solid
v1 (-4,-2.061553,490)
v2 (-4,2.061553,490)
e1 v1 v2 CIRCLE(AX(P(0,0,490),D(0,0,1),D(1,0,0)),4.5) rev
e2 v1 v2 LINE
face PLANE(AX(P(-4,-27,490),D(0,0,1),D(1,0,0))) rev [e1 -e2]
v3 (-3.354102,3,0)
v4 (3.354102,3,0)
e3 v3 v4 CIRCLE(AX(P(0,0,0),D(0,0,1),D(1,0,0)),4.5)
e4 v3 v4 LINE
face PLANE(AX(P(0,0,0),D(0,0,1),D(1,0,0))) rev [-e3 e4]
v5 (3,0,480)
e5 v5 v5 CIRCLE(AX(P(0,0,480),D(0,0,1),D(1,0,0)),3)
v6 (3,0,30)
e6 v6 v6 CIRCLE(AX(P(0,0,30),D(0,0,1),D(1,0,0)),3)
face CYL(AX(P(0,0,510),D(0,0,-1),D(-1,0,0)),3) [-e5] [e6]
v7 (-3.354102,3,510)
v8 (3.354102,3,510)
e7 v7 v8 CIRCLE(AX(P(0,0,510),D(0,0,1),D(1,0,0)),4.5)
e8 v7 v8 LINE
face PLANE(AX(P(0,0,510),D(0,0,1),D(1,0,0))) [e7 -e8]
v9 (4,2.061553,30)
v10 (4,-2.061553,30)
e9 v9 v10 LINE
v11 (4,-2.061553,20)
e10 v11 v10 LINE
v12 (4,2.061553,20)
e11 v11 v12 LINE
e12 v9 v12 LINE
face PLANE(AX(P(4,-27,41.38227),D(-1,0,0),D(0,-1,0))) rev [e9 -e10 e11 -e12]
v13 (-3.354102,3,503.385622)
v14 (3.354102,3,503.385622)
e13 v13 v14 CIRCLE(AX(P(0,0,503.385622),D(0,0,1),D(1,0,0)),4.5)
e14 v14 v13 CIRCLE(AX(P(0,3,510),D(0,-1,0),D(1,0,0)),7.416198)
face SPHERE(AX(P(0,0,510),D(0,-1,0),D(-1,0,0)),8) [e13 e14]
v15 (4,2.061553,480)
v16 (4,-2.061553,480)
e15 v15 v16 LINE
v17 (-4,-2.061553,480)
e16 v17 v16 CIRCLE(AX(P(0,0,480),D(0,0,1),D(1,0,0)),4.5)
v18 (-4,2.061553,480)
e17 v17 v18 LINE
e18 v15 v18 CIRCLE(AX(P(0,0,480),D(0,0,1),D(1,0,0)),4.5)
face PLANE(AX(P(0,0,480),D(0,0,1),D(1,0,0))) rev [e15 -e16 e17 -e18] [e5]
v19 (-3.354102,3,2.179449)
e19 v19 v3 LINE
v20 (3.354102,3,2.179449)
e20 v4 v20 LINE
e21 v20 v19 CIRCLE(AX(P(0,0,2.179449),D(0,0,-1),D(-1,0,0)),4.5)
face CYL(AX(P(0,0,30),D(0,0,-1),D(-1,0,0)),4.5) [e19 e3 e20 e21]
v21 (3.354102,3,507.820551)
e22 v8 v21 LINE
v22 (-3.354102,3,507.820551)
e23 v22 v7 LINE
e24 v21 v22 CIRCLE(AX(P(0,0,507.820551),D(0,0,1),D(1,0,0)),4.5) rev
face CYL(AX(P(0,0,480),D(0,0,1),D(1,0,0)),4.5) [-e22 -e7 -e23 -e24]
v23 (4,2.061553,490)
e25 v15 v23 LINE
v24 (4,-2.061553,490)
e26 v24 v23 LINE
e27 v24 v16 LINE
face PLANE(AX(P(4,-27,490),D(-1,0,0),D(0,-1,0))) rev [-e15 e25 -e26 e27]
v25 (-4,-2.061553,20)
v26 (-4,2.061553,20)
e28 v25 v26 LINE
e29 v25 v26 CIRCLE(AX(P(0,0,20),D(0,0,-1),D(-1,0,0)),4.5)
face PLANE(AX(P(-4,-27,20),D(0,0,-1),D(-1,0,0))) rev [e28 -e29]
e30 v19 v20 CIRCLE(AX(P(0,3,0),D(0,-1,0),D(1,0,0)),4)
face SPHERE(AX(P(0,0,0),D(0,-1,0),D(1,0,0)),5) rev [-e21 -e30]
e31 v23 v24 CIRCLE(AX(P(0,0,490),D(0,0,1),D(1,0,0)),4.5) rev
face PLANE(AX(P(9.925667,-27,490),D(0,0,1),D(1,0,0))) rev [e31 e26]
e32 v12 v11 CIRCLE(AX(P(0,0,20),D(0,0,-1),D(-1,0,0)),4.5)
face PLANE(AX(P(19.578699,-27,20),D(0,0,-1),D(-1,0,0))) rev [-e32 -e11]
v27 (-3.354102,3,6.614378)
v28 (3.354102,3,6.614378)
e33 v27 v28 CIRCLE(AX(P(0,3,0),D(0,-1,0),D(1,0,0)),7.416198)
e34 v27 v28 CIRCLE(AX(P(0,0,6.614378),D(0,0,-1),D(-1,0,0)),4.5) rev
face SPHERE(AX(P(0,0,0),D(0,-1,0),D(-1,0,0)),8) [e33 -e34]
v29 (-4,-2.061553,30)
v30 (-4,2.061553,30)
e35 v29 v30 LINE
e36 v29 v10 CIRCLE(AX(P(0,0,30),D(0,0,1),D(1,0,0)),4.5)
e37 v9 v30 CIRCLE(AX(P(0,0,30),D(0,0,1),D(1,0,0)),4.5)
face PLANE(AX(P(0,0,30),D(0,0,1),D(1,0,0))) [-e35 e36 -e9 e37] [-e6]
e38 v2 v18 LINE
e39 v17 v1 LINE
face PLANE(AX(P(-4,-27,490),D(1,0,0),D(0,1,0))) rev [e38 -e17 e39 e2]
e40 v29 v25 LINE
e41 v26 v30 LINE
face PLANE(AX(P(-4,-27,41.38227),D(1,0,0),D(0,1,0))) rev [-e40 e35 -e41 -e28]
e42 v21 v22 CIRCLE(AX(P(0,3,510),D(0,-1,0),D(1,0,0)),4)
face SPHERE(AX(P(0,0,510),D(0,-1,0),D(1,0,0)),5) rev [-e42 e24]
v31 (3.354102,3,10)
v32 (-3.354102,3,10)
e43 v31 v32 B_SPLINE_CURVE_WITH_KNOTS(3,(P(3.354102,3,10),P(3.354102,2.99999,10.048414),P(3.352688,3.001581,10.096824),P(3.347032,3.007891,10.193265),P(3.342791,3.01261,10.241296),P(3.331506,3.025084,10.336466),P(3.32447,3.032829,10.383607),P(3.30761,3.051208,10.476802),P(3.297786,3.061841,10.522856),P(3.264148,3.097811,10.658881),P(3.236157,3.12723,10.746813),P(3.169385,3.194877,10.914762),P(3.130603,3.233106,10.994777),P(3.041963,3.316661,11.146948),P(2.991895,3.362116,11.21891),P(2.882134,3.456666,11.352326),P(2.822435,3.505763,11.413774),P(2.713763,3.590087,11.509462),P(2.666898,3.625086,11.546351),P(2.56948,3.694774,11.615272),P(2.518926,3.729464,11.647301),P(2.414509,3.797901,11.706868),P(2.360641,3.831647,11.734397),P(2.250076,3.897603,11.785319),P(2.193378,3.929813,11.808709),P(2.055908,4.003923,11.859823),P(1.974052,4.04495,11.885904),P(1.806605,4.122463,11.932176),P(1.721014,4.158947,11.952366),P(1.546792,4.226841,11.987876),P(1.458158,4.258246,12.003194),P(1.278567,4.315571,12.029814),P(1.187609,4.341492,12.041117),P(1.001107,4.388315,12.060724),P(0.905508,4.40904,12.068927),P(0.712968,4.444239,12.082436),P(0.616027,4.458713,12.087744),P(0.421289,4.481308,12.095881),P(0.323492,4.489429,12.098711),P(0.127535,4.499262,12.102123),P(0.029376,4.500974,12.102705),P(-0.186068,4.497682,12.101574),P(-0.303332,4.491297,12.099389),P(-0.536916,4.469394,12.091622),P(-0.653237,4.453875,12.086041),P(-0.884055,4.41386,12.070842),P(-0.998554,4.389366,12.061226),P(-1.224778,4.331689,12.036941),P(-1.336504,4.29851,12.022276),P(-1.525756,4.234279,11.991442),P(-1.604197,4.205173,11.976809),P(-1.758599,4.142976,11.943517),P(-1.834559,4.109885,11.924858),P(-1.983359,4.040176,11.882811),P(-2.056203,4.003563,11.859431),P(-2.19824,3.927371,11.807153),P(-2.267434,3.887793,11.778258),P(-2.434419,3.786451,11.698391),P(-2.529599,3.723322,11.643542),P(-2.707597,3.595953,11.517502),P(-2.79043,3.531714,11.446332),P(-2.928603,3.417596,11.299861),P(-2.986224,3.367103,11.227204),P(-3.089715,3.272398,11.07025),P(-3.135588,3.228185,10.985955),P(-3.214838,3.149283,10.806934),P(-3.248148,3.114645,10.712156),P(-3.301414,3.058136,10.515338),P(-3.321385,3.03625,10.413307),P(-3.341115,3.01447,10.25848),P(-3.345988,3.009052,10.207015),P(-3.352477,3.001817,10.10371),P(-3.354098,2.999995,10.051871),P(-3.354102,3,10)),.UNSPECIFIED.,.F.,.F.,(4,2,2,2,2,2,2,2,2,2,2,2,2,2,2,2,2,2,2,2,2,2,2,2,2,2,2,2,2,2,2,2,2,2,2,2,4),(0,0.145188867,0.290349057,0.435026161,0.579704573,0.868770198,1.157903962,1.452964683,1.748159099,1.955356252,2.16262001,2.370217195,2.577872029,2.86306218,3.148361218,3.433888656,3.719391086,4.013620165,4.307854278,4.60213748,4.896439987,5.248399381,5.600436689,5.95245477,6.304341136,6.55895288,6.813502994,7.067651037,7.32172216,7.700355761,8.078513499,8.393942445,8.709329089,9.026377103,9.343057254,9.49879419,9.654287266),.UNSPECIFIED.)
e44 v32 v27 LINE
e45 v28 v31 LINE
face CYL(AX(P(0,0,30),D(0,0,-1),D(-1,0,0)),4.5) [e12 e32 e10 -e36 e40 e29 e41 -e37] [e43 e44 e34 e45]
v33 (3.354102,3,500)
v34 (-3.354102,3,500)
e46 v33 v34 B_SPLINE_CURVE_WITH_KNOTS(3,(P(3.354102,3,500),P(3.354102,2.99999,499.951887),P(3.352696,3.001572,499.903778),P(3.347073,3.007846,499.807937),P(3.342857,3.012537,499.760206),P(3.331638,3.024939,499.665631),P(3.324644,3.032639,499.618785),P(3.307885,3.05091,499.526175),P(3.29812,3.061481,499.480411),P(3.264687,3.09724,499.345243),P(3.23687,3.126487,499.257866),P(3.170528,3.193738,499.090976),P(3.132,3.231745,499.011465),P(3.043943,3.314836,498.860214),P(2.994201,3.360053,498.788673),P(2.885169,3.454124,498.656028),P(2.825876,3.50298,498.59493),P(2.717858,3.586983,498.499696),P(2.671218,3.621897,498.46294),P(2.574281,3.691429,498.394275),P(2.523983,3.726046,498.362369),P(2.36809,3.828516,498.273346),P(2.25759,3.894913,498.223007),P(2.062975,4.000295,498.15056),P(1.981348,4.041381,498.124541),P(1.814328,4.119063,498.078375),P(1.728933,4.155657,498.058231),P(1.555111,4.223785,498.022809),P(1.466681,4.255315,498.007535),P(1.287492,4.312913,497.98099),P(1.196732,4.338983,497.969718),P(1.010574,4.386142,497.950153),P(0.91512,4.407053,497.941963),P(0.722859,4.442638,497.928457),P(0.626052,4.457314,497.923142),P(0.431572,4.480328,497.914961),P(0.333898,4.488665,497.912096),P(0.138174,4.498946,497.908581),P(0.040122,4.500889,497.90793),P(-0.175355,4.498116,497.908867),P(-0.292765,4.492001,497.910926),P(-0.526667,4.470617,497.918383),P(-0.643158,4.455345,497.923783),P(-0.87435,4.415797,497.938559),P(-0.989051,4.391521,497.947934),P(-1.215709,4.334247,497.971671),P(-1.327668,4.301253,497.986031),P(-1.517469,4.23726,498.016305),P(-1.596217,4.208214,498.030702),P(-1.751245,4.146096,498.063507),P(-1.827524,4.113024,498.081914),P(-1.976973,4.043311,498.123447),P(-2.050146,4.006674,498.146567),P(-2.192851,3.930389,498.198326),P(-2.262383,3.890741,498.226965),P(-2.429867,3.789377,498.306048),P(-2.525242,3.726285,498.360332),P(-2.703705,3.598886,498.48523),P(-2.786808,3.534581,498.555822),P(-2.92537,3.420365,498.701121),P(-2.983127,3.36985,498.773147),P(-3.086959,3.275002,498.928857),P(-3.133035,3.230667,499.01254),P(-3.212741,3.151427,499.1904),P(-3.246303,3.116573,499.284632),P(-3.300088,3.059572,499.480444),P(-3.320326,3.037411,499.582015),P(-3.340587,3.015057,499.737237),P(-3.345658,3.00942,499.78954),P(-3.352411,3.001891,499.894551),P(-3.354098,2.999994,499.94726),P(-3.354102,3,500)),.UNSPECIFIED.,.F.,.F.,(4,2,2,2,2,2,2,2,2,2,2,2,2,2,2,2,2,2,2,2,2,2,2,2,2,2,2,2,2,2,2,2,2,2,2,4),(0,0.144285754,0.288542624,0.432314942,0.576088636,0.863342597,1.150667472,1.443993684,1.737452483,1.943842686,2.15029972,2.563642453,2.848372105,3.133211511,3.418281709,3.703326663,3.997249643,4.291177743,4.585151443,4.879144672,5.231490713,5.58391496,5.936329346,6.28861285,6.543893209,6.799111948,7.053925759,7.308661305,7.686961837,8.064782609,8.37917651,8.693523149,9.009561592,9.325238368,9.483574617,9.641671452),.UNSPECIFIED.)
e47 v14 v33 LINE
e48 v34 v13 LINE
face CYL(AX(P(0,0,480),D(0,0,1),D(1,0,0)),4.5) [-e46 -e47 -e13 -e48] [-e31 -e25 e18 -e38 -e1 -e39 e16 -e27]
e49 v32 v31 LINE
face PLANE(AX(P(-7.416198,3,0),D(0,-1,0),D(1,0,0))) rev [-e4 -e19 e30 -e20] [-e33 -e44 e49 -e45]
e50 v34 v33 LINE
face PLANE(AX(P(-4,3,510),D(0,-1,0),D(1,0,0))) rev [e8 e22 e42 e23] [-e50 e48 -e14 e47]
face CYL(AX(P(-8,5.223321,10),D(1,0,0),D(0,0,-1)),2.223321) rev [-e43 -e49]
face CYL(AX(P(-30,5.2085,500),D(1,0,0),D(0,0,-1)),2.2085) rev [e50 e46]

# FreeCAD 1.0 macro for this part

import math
import FreeCAD as App
import Part
import Sketcher
from FreeCAD import Vector

doc = App.newDocument("Part")
body = doc.addObject("PartDesign::Body", "Body")

# Sketch on XY plane
sketch1 = body.newObject("Sketcher::SketchObject", "Sketch")
sketch1.AttachmentSupport = (doc.getObject("XY_Plane"), [""])
sketch1.MapMode = "FlatFace"
sketch1.addGeometry([
    Part.LineSegment(Vector(-4, 3, 0), Vector(-7.416198, 3, 0)),
    Part.ArcOfCircle(Part.Circle(Vector(0, 0, 0), Vector(0, 0, 1), 8), math.radians(157.975687), math.radians(270)),
    Part.LineSegment(Vector(0, -8, 0), Vector(0, -5, 0)),
    Part.ArcOfCircle(Part.Circle(Vector(0, 0, 0), Vector(0, 0, 1), 5), math.radians(143.130102), math.radians(270)),
], False)
sketch1.addConstraint([
    Sketcher.Constraint("Coincident", 0, 2, 1, 1),
    Sketcher.Constraint("Coincident", 1, 2, 2, 1),
    Sketcher.Constraint("Coincident", 2, 2, 3, 2),
    Sketcher.Constraint("Coincident", 3, 1, 0, 1),
    Sketcher.Constraint("Horizontal", 0),
    Sketcher.Constraint("Vertical", 2),
    Sketcher.Constraint("Coincident", 1, 3, -1, 1),
    Sketcher.Constraint("Coincident", 3, 3, -1, 1),
    Sketcher.Constraint("PointOnObject", 1, 2, -2),
    Sketcher.Constraint("Radius", 1, 8.0),
    Sketcher.Constraint("Radius", 3, 5.0),
    Sketcher.Constraint("DistanceY", -1, 1, 0, 2, 3.0),
])
revolution = body.newObject("PartDesign::Revolution", "Revolution")
revolution.Profile = sketch1
revolution.ReferenceAxis = (sketch1, ["V_Axis"])
revolution.Angle = 360

# Sketch on XY plane
sketch2 = body.newObject("Sketcher::SketchObject", "Sketch001")
sketch2.AttachmentSupport = (doc.getObject("XY_Plane"), [""])
sketch2.MapMode = "FlatFace"
sketch2.addGeometry(Part.Circle(Vector(0, 0, 0), Vector(0, 0, 1), 3), False)
sketch2.addConstraint([
    Sketcher.Constraint("Coincident", 0, 3, -1, 1),
    Sketcher.Constraint("Diameter", 0, 6.0),
])
pad1 = body.newObject("PartDesign::Pad", "Pad")
pad1.Profile = sketch2
pad1.Length = 510

# Sketch on XY plane
sketch3 = body.newObject("Sketcher::SketchObject", "Sketch002")
sketch3.AttachmentSupport = (doc.getObject("XY_Plane"), [""])
sketch3.MapMode = "FlatFace"
sketch3.addGeometry([
    Part.LineSegment(Vector(0, -5, 0), Vector(0, 5, 0)),
    Part.ArcOfCircle(Part.Circle(Vector(0, 0, 0), Vector(0, 0, 1), 5), math.radians(90), math.radians(270)),
], False)
sketch3.addConstraint([
    Sketcher.Constraint("Coincident", 0, 1, 1, 2),
    Sketcher.Constraint("Coincident", 1, 1, 0, 2),
    Sketcher.Constraint("Vertical", 0),
    Sketcher.Constraint("Coincident", 1, 3, -1, 1),
    Sketcher.Constraint("PointOnObject", 0, 1, -2),
    Sketcher.Constraint("Radius", 1, 5.0),
])
groove = body.newObject("PartDesign::Groove", "Groove")
groove.Profile = sketch3
groove.ReferenceAxis = (sketch3, ["V_Axis"])
groove.Angle = 360

# Sketch on XY plane
sketch4 = body.newObject("Sketcher::SketchObject", "Sketch003")
sketch4.AttachmentSupport = (doc.getObject("XY_Plane"), [""])
sketch4.MapMode = "FlatFace"
sketch4.AttachmentOffset = App.Placement(Vector(0, 0, 510), App.Rotation())
sketch4.addGeometry([
    Part.LineSegment(Vector(-4, 3, 0), Vector(-7.416198, 3, 0)),
    Part.ArcOfCircle(Part.Circle(Vector(0, 0, 0), Vector(0, 0, 1), 8), math.radians(157.975687), math.radians(270)),
    Part.LineSegment(Vector(0, -8, 0), Vector(0, -5, 0)),
    Part.ArcOfCircle(Part.Circle(Vector(0, 0, 0), Vector(0, 0, 1), 5), math.radians(143.130102), math.radians(270)),
], False)
sketch4.addConstraint([
    Sketcher.Constraint("Coincident", 0, 2, 1, 1),
    Sketcher.Constraint("Coincident", 1, 2, 2, 1),
    Sketcher.Constraint("Coincident", 2, 2, 3, 2),
    Sketcher.Constraint("Coincident", 3, 1, 0, 1),
    Sketcher.Constraint("Horizontal", 0),
    Sketcher.Constraint("Vertical", 2),
    Sketcher.Constraint("Coincident", 1, 3, -1, 1),
    Sketcher.Constraint("Coincident", 3, 3, -1, 1),
    Sketcher.Constraint("PointOnObject", 1, 2, -2),
    Sketcher.Constraint("Radius", 1, 8.0),
    Sketcher.Constraint("Radius", 3, 5.0),
    Sketcher.Constraint("DistanceY", -1, 1, 0, 2, 3.0),
])
revolution2 = body.newObject("PartDesign::Revolution", "Revolution001")
revolution2.Profile = sketch4
revolution2.ReferenceAxis = (sketch4, ["V_Axis"])
revolution2.Angle = 360

# Sketch on XY plane
sketch5 = body.newObject("Sketcher::SketchObject", "Sketch004")
sketch5.AttachmentSupport = (doc.getObject("XY_Plane"), [""])
sketch5.MapMode = "FlatFace"
sketch5.addGeometry(Part.Circle(Vector(0, 0, 0), Vector(0, 0, 1), 4.5), False)
sketch5.addConstraint([
    Sketcher.Constraint("Coincident", 0, 3, -1, 1),
    Sketcher.Constraint("Diameter", 0, 9.0),
])
pad2 = body.newObject("PartDesign::Pad", "Pad001")
pad2.Profile = sketch5
pad2.Length = 30

# Sketch on YZ plane
sketch6 = body.newObject("Sketcher::SketchObject", "Sketch005")
sketch6.AttachmentSupport = (doc.getObject("YZ_Plane"), [""])
sketch6.MapMode = "FlatFace"
sketch6.addGeometry([
    Part.LineSegment(Vector(3, 10, 0), Vector(3, -7.416198, 0)),
    Part.LineSegment(Vector(3, -7.416198, 0), Vector(4.5, 0, 0)),
    Part.LineSegment(Vector(4.5, 0, 0), Vector(4.5, 12.102371, 0)),
    Part.ArcOfCircle(Part.Circle(Vector(5.223321, 10, 0), Vector(0, 0, 1), 2.223321), math.radians(108.985783), math.radians(180)),
], False)
sketch6.addConstraint([
    Sketcher.Constraint("Coincident", 0, 2, 1, 1),
    Sketcher.Constraint("Coincident", 1, 2, 2, 1),
    Sketcher.Constraint("Coincident", 2, 2, 3, 1),
    Sketcher.Constraint("Tangent", 3, 2, 0, 1),
    Sketcher.Constraint("Vertical", 0),
    Sketcher.Constraint("Vertical", 2),
    Sketcher.Constraint("PointOnObject", 1, 2, -1),
    Sketcher.Constraint("DistanceY", -1, 1, 3, 3, 10.0),
    Sketcher.Constraint("DistanceX", -1, 1, 0, 2, 3.0),
    Sketcher.Constraint("DistanceX", -1, 1, 1, 2, 4.5),
    Sketcher.Constraint("Radius", 3, 2.223321),
    Sketcher.Constraint("DistanceY", 0, 2, 0, 1, 17.416198),
])
pocket1 = body.newObject("PartDesign::Pocket", "Pocket")
pocket1.Profile = sketch6
pocket1.Type = "ThroughAll"
pocket1.Midplane = True

# Sketch on XY plane
sketch7 = body.newObject("Sketcher::SketchObject", "Sketch006")
sketch7.AttachmentSupport = (doc.getObject("XY_Plane"), [""])
sketch7.MapMode = "FlatFace"
sketch7.AttachmentOffset = App.Placement(Vector(0, 0, 480), App.Rotation())
sketch7.addGeometry(Part.Circle(Vector(0, 0, 0), Vector(0, 0, 1), 4.5), False)
sketch7.addConstraint([
    Sketcher.Constraint("Coincident", 0, 3, -1, 1),
    Sketcher.Constraint("Diameter", 0, 9.0),
])
pad3 = body.newObject("PartDesign::Pad", "Pad002")
pad3.Profile = sketch7
pad3.Length = 30

# Sketch on YZ plane
sketch8 = body.newObject("Sketcher::SketchObject", "Sketch007")
sketch8.AttachmentSupport = (doc.getObject("YZ_Plane"), [""])
sketch8.MapMode = "FlatFace"
sketch8.addGeometry([
    Part.LineSegment(Vector(3, 522.263931, 0), Vector(3, 500, 0)),
    Part.ArcOfCircle(Part.Circle(Vector(5.2085, 500, 0), Vector(0, 0, 1), 2.2085), math.radians(-180), math.radians(-108.711677)),
    Part.LineSegment(Vector(4.5, 497.90823, 0), Vector(4.5, 522.188392, 0)),
    Part.LineSegment(Vector(4.5, 522.188392, 0), Vector(3, 522.263931, 0)),
], False)
sketch8.addConstraint([
    Sketcher.Constraint("Tangent", 0, 2, 1, 1),
    Sketcher.Constraint("Coincident", 1, 2, 2, 1),
    Sketcher.Constraint("Coincident", 2, 2, 3, 1),
    Sketcher.Constraint("Coincident", 3, 2, 0, 1),
    Sketcher.Constraint("Vertical", 0),
    Sketcher.Constraint("Vertical", 2),
    Sketcher.Constraint("DistanceY", -1, 1, 1, 3, 500.0),
    Sketcher.Constraint("DistanceX", -1, 1, 0, 2, 3.0),
    Sketcher.Constraint("DistanceX", -1, 1, 1, 2, 4.5),
    Sketcher.Constraint("Radius", 1, 2.2085),
    Sketcher.Constraint("Distance", 3, 1.501901),
    Sketcher.Constraint("DistanceY", 0, 2, 0, 1, 22.263931),
])
pocket2 = body.newObject("PartDesign::Pocket", "Pocket001")
pocket2.Profile = sketch8
pocket2.Type = "ThroughAll"
pocket2.Midplane = True

# Sketch on XZ plane
sketch9 = body.newObject("Sketcher::SketchObject", "Sketch008")
sketch9.AttachmentSupport = (doc.getObject("XZ_Plane"), [""])
sketch9.MapMode = "FlatFace"
sketch9.AttachmentOffset = App.Placement(Vector(0, 0, -3), App.Rotation())
sketch9.addGeometry([
    Part.LineSegment(Vector(9.925667, 490, 0), Vector(9.925667, 475.101693, 0)),  # 0
    Part.LineSegment(Vector(9.925667, 475.101693, 0), Vector(4, 475.101693, 0)),  # 1
    Part.LineSegment(Vector(4, 475.101693, 0), Vector(4, 490, 0)),  # 2
    Part.LineSegment(Vector(4, 490, 0), Vector(9.925667, 490, 0)),  # 3
    Part.LineSegment(Vector(-4, 490, 0), Vector(-4, 475.101693, 0)),  # 4
    Part.LineSegment(Vector(-4, 475.101693, 0), Vector(-10.139683, 475.101693, 0)),  # 5
    Part.LineSegment(Vector(-10.139683, 475.101693, 0), Vector(-10.139683, 490, 0)),  # 6
    Part.LineSegment(Vector(-10.139683, 490, 0), Vector(-4, 490, 0)),  # 7
    Part.LineSegment(Vector(19.578699, 41.38227, 0), Vector(19.578699, 20, 0)),  # 8
    Part.LineSegment(Vector(19.578699, 20, 0), Vector(4, 20, 0)),  # 9
    Part.LineSegment(Vector(4, 20, 0), Vector(4, 41.38227, 0)),  # 10
    Part.LineSegment(Vector(4, 41.38227, 0), Vector(19.578699, 41.38227, 0)),  # 11
    Part.LineSegment(Vector(-4, 41.38227, 0), Vector(-4, 20, 0)),  # 12
    Part.LineSegment(Vector(-4, 20, 0), Vector(-16.448961, 20, 0)),  # 13
    Part.LineSegment(Vector(-16.448961, 20, 0), Vector(-16.448961, 41.38227, 0)),  # 14
    Part.LineSegment(Vector(-16.448961, 41.38227, 0), Vector(-4, 41.38227, 0)),  # 15
], False)
sketch9.addConstraint([
    Sketcher.Constraint("Coincident", 0, 2, 1, 1),
    Sketcher.Constraint("Coincident", 1, 2, 2, 1),
    Sketcher.Constraint("Coincident", 2, 2, 3, 1),
    Sketcher.Constraint("Coincident", 3, 2, 0, 1),
    Sketcher.Constraint("Coincident", 4, 2, 5, 1),
    Sketcher.Constraint("Coincident", 5, 2, 6, 1),
    Sketcher.Constraint("Coincident", 6, 2, 7, 1),
    Sketcher.Constraint("Coincident", 7, 2, 4, 1),
    Sketcher.Constraint("Coincident", 8, 2, 9, 1),
    Sketcher.Constraint("Coincident", 9, 2, 10, 1),
    Sketcher.Constraint("Coincident", 10, 2, 11, 1),
    Sketcher.Constraint("Coincident", 11, 2, 8, 1),
    Sketcher.Constraint("Coincident", 12, 2, 13, 1),
    Sketcher.Constraint("Coincident", 13, 2, 14, 1),
    Sketcher.Constraint("Coincident", 14, 2, 15, 1),
    Sketcher.Constraint("Coincident", 15, 2, 12, 1),
    Sketcher.Constraint("Vertical", 0),
    Sketcher.Constraint("Horizontal", 1),
    Sketcher.Constraint("Vertical", 2),
    Sketcher.Constraint("Horizontal", 3),
    Sketcher.Constraint("Vertical", 4),
    Sketcher.Constraint("Horizontal", 5),
    Sketcher.Constraint("Vertical", 6),
    Sketcher.Constraint("Horizontal", 7),
    Sketcher.Constraint("Vertical", 8),
    Sketcher.Constraint("Horizontal", 9),
    Sketcher.Constraint("Vertical", 10),
    Sketcher.Constraint("Horizontal", 11),
    Sketcher.Constraint("Vertical", 12),
    Sketcher.Constraint("Horizontal", 13),
    Sketcher.Constraint("Vertical", 14),
    Sketcher.Constraint("Horizontal", 15),
    Sketcher.Constraint("Symmetric", 1, 2, 4, 2, -2),
    Sketcher.Constraint("Symmetric", 9, 2, 12, 2, -2),
    Sketcher.Constraint("Horizontal", 3, 2, 6, 2),
    Sketcher.Constraint("Horizontal", 11, 2, 14, 2),
    Sketcher.Constraint("Vertical", 2, 2, 9, 2),
    Sketcher.Constraint("DistanceX", -1, 1, 1, 2, 4.0),
    Sketcher.Constraint("DistanceY", -1, 1, 2, 2, 490.0),
    Sketcher.Constraint("DistanceY", -1, 1, 8, 2, 20.0),
    Sketcher.Constraint("DistanceX", 9, 2, 9, 1, 15.578699),
    Sketcher.Constraint("DistanceX", 13, 2, 13, 1, 12.448961),
    Sketcher.Constraint("DistanceY", 8, 2, 8, 1, 21.38227),
    Sketcher.Constraint("DistanceX", 1, 2, 1, 1, 5.925667),
    Sketcher.Constraint("DistanceX", 5, 2, 5, 1, 6.139683),
    Sketcher.Constraint("DistanceY", 0, 2, 0, 1, 14.898307),
])
pocket3 = body.newObject("PartDesign::Pocket", "Pocket002")
pocket3.Profile = sketch9
pocket3.Type = "ThroughAll"
pocket3.Midplane = True

doc.recompute()
